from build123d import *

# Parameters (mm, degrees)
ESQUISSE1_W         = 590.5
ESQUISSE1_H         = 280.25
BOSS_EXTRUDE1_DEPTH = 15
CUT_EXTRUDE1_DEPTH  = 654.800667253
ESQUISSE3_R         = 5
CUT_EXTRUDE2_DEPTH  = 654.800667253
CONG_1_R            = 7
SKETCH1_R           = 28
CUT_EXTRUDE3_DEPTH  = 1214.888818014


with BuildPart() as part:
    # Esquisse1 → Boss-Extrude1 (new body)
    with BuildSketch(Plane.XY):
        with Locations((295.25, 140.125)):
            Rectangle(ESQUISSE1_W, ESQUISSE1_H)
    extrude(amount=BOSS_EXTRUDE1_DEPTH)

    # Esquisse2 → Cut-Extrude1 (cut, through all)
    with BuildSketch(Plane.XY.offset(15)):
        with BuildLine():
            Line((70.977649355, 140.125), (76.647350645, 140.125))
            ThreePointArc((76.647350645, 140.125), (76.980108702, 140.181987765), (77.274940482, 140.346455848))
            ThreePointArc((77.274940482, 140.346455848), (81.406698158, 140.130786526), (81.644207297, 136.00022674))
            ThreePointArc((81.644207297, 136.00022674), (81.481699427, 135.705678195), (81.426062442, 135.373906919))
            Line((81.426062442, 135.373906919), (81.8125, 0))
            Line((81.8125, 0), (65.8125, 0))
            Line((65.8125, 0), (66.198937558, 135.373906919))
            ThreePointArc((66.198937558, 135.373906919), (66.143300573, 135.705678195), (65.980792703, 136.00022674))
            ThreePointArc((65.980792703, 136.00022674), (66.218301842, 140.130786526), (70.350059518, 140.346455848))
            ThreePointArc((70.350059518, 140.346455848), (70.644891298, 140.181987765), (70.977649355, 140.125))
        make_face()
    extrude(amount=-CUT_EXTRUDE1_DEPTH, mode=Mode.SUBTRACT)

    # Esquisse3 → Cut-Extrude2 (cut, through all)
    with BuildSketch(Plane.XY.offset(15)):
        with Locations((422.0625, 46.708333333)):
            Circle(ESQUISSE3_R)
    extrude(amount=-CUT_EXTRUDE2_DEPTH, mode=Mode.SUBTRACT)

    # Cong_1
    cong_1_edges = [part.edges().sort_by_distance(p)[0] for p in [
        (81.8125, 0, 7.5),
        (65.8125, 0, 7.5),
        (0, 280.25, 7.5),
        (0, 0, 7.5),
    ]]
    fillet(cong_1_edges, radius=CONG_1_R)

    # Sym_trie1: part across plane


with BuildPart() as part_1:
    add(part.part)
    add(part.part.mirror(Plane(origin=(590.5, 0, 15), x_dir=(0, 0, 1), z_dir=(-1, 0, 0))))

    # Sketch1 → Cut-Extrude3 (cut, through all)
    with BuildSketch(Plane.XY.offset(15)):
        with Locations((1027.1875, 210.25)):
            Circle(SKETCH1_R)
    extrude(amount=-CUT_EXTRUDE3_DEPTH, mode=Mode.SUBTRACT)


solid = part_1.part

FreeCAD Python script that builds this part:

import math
import FreeCAD as App
import Part
import Sketcher


def edges_at(feature, points):
    """Names of the edges that pass closest to the given points."""
    edges = feature.Shape.Edges
    near = lambda p: min(range(len(edges)), key=lambda i: edges[i].distToShape(Part.Vertex(*p))[0])
    return sorted({f"Edge{near(p) + 1}" for p in points})

doc = App.newDocument("Part")
params = doc.addObject("Spreadsheet::Sheet", "Params")
for row, (alias, value) in enumerate([
    ("sketch1_width", "590.5 mm"),
    ("sketch1_height", "280.25 mm"),
    ("pad1_length", "15 mm"),
    ("sketch2_radius", "1 mm"),
    ("sketch2_radius2", "3.1 mm"),
    ("sketch2_width", "16 mm"),
    ("sketch3_diameter", "10 mm"),
    ("fillet_radius", "7 mm"),
    ("sketch4_diameter", "56 mm"),
], start=1):
    params.set(f"A{row}", alias)
    params.set(f"B{row}", "=" + value)
    params.setAlias(f"B{row}", alias)

body = doc.addObject("PartDesign::Body", "Body")

sketch1 = doc.addObject("Sketcher::SketchObject", "Sketch")
body.addObject(sketch1)
sketch1.AttachmentSupport = (doc.XY_Plane, [""])
sketch1.MapMode = "FlatFace"
sketch1.addGeometry([
    Part.LineSegment(App.Vector(0, 280.25, 0), App.Vector(0, 0, 0)),
    Part.LineSegment(App.Vector(0, 0, 0), App.Vector(590.5, 0, 0)),
    Part.LineSegment(App.Vector(590.5, 0, 0), App.Vector(590.5, 280.25, 0)),
    Part.LineSegment(App.Vector(590.5, 280.25, 0), App.Vector(0, 280.25, 0)),
], False)
sketch1.addConstraint([
    Sketcher.Constraint("Coincident", 0, 2, 1, 1),
    Sketcher.Constraint("Coincident", 1, 2, 2, 1),
    Sketcher.Constraint("Coincident", 2, 2, 3, 1),
    Sketcher.Constraint("Coincident", 3, 2, 0, 1),
    Sketcher.Constraint("Vertical", 0),
    Sketcher.Constraint("Horizontal", 1),
    Sketcher.Constraint("Vertical", 2),
    Sketcher.Constraint("Horizontal", 3),
    Sketcher.Constraint("Coincident", 0, 2, -1, 1),
    Sketcher.Constraint("DistanceX", 1, 1, 1, 2, 590.5),
    Sketcher.Constraint("DistanceY", 0, 2, 0, 1, 280.25),
])
sketch1.setExpression("Constraints[9]", "Params.sketch1_width")
sketch1.setExpression("Constraints[10]", "Params.sketch1_height")
pad1 = doc.addObject("PartDesign::Pad", "Pad")
body.addObject(pad1)
pad1.Profile = sketch1
pad1.setExpression("Length", "Params.pad1_length")

sketch2 = doc.addObject("Sketcher::SketchObject", "Sketch001")
body.addObject(sketch2)
sketch2.AttachmentSupport = (doc.XY_Plane, [""])
sketch2.MapMode = "FlatFace"
sketch2.AttachmentOffset = App.Placement(App.Vector(0, 0, 15), App.Rotation())
sketch2.addGeometry([
    Part.LineSegment(App.Vector(76.647351, 140.125, 0), App.Vector(70.977649, 140.125, 0)),
    Part.ArcOfCircle(Part.Circle(App.Vector(70.977649, 141.125, 0), App.Vector(0, 0, 1), 1), math.radians(-128.872528), math.radians(-90)),
    Part.ArcOfCircle(Part.Circle(App.Vector(68.404531, 137.932969, 0), App.Vector(0, 0, 1), 3.1), math.radians(51.127472), math.radians(218.569628)),
    Part.ArcOfCircle(Part.Circle(App.Vector(65.198942, 135.376762, 0), App.Vector(0, 0, 1), 1), math.radians(-0.163556), math.radians(38.569628)),
    Part.LineSegment(App.Vector(66.198938, 135.373907, 0), App.Vector(65.8125, 0, 0)),
    Part.LineSegment(App.Vector(65.8125, 0, 0), App.Vector(81.8125, 0, 0)),
    Part.LineSegment(App.Vector(81.8125, 0, 0), App.Vector(81.426062, 135.373907, 0)),
    Part.ArcOfCircle(Part.Circle(App.Vector(82.426058, 135.376762, 0), App.Vector(0, 0, 1), 1), math.radians(141.430372), math.radians(180.163556)),
    Part.ArcOfCircle(Part.Circle(App.Vector(79.220469, 137.932969, 0), App.Vector(0, 0, 1), 3.1), math.radians(-38.569628), math.radians(128.872528)),
    Part.ArcOfCircle(Part.Circle(App.Vector(76.647351, 141.125, 0), App.Vector(0, 0, 1), 1), math.radians(-90), math.radians(-51.127472)),
], False)
sketch2.addConstraint([
    Sketcher.Constraint("Tangent", 0, 2, 1, 2),
    Sketcher.Constraint("Tangent", 1, 1, 2, 1),
    Sketcher.Constraint("Tangent", 2, 2, 3, 2),
    Sketcher.Constraint("Tangent", 3, 1, 4, 1),
    Sketcher.Constraint("Coincident", 4, 2, 5, 1),
    Sketcher.Constraint("Coincident", 5, 2, 6, 1),
    Sketcher.Constraint("Tangent", 6, 2, 7, 2),
    Sketcher.Constraint("Tangent", 7, 1, 8, 1),
    Sketcher.Constraint("Tangent", 8, 2, 9, 2),
    Sketcher.Constraint("Tangent", 9, 1, 0, 1),
    Sketcher.Constraint("Horizontal", 0),
    Sketcher.Constraint("Horizontal", 5),
    Sketcher.Constraint("Equal", 1, 3),
    Sketcher.Constraint("Equal", 3, 7),
    Sketcher.Constraint("Equal", 2, 8),
    Sketcher.Constraint("Equal", 7, 9),
    Sketcher.Constraint("PointOnObject", 4, 2, -1),
    Sketcher.Constraint("Horizontal", 3, 3, 7, 3),
    Sketcher.Constraint("Horizontal", 2, 3, 8, 3),
    Sketcher.Constraint("Horizontal", 3, 1, 6, 2),
    Sketcher.Constraint("Radius", 1, 1.0),
    Sketcher.Constraint("Radius", 2, 3.1),
    Sketcher.Constraint("DistanceX", 5, 1, 5, 2, 16.0),
    Sketcher.Constraint("DistanceX", 0, 2, 0, 1, 5.669701),
    Sketcher.Constraint("DistanceY", -1, 1, 1, 3, 141.125),
    Sketcher.Constraint("DistanceX", -1, 1, 4, 2, 65.8125),
    Sketcher.Constraint("Distance", 4, 135.374458),
    Sketcher.Constraint("DistanceX", -1, 1, 2, 3, 68.404531),
])
sketch2.setExpression("Constraints[20]", "Params.sketch2_radius")
sketch2.setExpression("Constraints[21]", "Params.sketch2_radius2")
sketch2.setExpression("Constraints[22]", "Params.sketch2_width")
pocket1 = doc.addObject("PartDesign::Pocket", "Pocket")
body.addObject(pocket1)
pocket1.Profile = sketch2
pocket1.Type = "ThroughAll"

sketch3 = doc.addObject("Sketcher::SketchObject", "Sketch002")
body.addObject(sketch3)
sketch3.AttachmentSupport = (doc.XY_Plane, [""])
sketch3.MapMode = "FlatFace"
sketch3.AttachmentOffset = App.Placement(App.Vector(0, 0, 15), App.Rotation())
sketch3.addGeometry(Part.Circle(App.Vector(422.0625, 46.708333, 0), App.Vector(0, 0, 1), 5), False)
sketch3.addConstraint([
    Sketcher.Constraint("Diameter", 0, 10.0),
    Sketcher.Constraint("DistanceX", -1, 1, 0, 3, 422.0625),
    Sketcher.Constraint("DistanceY", -1, 1, 0, 3, 46.708333),
])
sketch3.setExpression("Constraints[0]", "Params.sketch3_diameter")
pocket2 = doc.addObject("PartDesign::Pocket", "Pocket001")
body.addObject(pocket2)
pocket2.Profile = sketch3
pocket2.Type = "ThroughAll"
doc.recompute()

fillet = doc.addObject("PartDesign::Fillet", "Fillet")
body.addObject(fillet)
fillet.Base = (pocket2, edges_at(pocket2, [
    (81.812, 0, 7.5),
    (65.812, 0, 7.5),
    (0, 280.25, 7.5),
    (0, 0, 7.5),
]))
fillet.setExpression("Radius", "Params.fillet_radius")
body2 = doc.addObject("PartDesign::Body", "Body001")
doc.recompute()

body2.BaseFeature = body
doc.recompute()

mirroring = doc.addObject("Part::Mirroring", "Mirroring")
mirroring.Source = body
mirroring.Base = App.Vector(590.5, 0, 15)
mirroring.Normal = App.Vector(-1, 0, 0)
body3 = doc.addObject("PartDesign::Body", "Body002")
body3.BaseFeature = mirroring
boolean = doc.addObject("PartDesign::Boolean", "Boolean")
body2.addObject(boolean)
boolean.Type = "Fuse"
boolean.addObjects([body3])
doc.recompute()

sketch4 = doc.addObject("Sketcher::SketchObject", "Sketch003")
body2.addObject(sketch4)
sketch4.AttachmentSupport = (doc.getObject("XY_Plane001"), [""])
sketch4.MapMode = "FlatFace"
sketch4.AttachmentOffset = App.Placement(App.Vector(0, 0, 15), App.Rotation())
sketch4.addGeometry(Part.Circle(App.Vector(1027.1875, 210.25, 0), App.Vector(0, 0, 1), 28), False)
sketch4.addConstraint([
    Sketcher.Constraint("Diameter", 0, 56.0),
    Sketcher.Constraint("DistanceY", -1, 1, 0, 3, 210.25),
    Sketcher.Constraint("DistanceX", -1, 1, 0, 3, 1027.1875),
])
sketch4.setExpression("Constraints[0]", "Params.sketch4_diameter")
pocket3 = doc.addObject("PartDesign::Pocket", "Pocket002")
body2.addObject(pocket3)
pocket3.Profile = sketch4
pocket3.Type = "ThroughAll"
mirroring.Visibility = False

doc.recompute()
